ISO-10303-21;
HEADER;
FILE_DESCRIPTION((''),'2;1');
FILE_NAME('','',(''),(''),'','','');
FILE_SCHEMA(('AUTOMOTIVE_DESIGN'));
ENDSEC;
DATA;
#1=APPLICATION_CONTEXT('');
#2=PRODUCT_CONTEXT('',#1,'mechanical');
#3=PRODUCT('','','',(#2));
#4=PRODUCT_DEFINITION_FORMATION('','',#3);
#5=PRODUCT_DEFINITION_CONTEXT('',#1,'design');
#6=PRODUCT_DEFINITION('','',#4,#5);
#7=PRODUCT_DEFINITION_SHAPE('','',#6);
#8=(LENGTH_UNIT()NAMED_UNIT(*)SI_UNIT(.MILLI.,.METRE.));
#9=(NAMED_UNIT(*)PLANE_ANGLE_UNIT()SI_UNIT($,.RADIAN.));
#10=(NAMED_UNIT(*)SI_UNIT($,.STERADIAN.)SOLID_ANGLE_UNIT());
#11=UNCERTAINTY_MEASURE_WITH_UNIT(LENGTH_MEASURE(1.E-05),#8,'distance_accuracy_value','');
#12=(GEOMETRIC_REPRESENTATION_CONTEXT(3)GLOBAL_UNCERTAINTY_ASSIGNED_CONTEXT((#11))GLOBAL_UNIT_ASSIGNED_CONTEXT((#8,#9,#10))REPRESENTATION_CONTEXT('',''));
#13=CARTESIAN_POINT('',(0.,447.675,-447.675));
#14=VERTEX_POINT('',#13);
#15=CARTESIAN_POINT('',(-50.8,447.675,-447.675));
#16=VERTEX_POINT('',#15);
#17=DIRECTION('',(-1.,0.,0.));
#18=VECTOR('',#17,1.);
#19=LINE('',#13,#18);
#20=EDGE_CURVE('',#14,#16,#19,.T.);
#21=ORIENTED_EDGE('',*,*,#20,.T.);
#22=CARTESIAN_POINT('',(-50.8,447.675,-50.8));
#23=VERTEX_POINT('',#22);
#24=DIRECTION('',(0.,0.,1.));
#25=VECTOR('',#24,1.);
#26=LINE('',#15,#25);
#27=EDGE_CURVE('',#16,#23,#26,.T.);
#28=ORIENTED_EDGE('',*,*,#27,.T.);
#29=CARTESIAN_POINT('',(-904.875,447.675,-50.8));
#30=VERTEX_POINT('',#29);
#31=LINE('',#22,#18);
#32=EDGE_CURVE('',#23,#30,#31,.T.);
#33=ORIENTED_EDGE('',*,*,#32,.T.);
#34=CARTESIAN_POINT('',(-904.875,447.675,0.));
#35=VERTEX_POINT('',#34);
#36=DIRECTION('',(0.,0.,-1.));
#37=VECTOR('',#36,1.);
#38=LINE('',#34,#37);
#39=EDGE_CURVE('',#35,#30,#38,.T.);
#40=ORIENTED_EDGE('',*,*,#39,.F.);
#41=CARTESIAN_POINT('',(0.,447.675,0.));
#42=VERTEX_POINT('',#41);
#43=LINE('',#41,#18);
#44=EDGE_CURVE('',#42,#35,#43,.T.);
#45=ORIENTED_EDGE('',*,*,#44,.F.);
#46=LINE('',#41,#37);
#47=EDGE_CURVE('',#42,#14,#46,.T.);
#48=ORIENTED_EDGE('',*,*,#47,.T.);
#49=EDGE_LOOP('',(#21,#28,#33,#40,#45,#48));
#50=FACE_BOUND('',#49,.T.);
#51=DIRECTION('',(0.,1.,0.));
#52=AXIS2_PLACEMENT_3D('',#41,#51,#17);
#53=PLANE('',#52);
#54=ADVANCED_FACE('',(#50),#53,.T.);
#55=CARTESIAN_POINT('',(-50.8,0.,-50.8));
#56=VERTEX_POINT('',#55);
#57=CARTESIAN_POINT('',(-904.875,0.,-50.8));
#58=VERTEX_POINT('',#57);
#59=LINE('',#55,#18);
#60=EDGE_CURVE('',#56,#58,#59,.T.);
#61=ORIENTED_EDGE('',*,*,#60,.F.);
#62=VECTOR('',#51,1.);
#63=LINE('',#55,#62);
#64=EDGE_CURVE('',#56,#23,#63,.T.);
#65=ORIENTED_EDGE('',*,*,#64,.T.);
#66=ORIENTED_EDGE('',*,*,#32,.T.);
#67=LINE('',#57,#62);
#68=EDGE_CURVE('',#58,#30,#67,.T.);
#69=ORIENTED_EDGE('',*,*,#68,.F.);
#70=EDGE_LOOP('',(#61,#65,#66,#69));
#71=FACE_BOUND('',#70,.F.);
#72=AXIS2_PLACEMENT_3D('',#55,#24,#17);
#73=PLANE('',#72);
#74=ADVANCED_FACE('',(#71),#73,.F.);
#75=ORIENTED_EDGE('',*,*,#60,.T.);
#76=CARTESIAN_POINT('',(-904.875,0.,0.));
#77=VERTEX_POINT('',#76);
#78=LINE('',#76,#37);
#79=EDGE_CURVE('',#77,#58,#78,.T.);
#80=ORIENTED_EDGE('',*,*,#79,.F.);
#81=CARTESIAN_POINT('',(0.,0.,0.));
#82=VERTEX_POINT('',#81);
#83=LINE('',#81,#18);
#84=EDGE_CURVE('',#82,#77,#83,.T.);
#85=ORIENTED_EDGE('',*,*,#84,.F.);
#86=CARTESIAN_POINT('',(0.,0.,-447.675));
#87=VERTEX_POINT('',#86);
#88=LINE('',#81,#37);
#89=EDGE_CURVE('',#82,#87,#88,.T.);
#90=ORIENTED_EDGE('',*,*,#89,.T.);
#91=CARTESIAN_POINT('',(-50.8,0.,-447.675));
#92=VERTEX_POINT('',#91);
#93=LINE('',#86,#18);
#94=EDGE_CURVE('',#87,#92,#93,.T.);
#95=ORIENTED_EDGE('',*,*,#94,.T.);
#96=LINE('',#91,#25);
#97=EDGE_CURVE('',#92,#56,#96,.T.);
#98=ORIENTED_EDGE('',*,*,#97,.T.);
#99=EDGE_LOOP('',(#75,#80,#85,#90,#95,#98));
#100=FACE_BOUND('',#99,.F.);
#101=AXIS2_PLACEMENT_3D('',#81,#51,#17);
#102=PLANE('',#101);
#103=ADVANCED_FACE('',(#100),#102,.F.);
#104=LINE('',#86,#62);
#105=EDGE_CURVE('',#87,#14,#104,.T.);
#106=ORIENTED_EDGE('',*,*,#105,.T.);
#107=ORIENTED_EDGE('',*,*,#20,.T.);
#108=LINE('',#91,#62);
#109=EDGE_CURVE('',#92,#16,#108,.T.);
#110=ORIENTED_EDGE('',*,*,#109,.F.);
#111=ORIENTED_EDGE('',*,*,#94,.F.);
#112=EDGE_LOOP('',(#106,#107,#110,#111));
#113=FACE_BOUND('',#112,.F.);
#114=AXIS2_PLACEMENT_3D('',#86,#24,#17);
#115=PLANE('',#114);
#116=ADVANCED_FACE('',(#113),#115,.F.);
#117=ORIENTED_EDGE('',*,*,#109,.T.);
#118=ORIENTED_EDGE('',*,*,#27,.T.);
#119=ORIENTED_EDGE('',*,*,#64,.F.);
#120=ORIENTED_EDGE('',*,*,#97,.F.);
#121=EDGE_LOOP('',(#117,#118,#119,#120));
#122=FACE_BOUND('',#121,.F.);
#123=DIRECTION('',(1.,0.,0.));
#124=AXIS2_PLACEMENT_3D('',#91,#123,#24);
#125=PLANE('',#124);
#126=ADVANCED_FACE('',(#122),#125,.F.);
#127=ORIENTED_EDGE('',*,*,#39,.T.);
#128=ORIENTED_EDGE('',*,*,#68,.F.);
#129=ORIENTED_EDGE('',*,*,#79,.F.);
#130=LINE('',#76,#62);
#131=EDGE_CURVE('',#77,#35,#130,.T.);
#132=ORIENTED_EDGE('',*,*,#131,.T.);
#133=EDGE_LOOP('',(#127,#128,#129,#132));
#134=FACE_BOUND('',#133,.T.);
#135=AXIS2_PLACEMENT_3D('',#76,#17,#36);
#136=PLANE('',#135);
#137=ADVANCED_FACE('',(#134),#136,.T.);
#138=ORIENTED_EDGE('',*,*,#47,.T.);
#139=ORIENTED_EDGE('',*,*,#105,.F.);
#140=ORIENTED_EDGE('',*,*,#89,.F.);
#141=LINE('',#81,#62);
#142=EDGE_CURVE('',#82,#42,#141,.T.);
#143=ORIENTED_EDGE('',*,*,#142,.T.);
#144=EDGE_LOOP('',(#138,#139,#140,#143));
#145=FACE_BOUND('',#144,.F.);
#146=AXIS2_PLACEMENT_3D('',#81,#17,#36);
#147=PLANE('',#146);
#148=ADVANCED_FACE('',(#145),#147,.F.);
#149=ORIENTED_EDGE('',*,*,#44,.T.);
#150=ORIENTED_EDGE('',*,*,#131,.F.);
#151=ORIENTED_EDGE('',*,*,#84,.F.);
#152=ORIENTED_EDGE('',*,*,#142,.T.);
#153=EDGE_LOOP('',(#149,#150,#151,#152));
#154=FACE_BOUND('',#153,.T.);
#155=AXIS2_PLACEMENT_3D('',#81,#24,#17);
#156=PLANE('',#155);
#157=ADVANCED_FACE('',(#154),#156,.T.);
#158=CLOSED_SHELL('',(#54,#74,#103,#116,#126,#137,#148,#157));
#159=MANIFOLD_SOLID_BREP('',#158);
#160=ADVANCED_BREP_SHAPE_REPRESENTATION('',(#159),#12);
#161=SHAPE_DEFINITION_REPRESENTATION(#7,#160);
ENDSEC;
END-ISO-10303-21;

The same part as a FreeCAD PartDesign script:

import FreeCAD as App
import Part
import Sketcher
from FreeCAD import Vector
Q = App.Units.Quantity


def add_polygon(sketch, points):
    """Adds a closed chain of lines whose ends are joined by coincident constraints."""
    first, n = sketch.GeometryCount, len(points)
    for a, b in zip(points, points[1:] + points[:1]):
        sketch.addGeometry(Part.LineSegment(App.Vector(*a, 0), App.Vector(*b, 0)), False)
    for i in range(n):
        sketch.addConstraint(Sketcher.Constraint("Coincident", first + i, 2, first + (i + 1) % n, 1))

doc = App.newDocument("Part")
body = doc.addObject("PartDesign::Body", "Body")

# Sketch on XZ plane
sketch1 = body.newObject("Sketcher::SketchObject", "Sketch")
sketch1.AttachmentSupport = (doc.getObject("XZ_Plane"), [""])
sketch1.MapMode = "FlatFace"
add_polygon(sketch1, [(-904.875, 0), (0, 0), (0, -447.675), (-50.8, -447.675), (-50.8, -50.8), (-904.875, -50.8)])  # lines 0-5
sketch1.addConstraint(Sketcher.Constraint("Horizontal", 0))
sketch1.addConstraint(Sketcher.Constraint("Vertical", 1))
sketch1.addConstraint(Sketcher.Constraint("Horizontal", 2))
sketch1.addConstraint(Sketcher.Constraint("Vertical", 3))
sketch1.addConstraint(Sketcher.Constraint("Horizontal", 4))
sketch1.addConstraint(Sketcher.Constraint("Vertical", 5))
sketch1.addConstraint(Sketcher.Constraint("Coincident", 0, 2, -1, 1))
sketch1.addConstraint(Sketcher.Constraint("Equal", 2, 5))
sketch1.addConstraint(Sketcher.Constraint("DistanceX", 2, 2, 2, 1, Q("2 in")))
sketch1.addConstraint(Sketcher.Constraint("DistanceX", 0, 1, 0, 2, Q("35.625 in")))
sketch1.addConstraint(Sketcher.Constraint("DistanceY", 1, 2, 1, 1, Q("17.625 in")))
pad1 = body.newObject("PartDesign::Pad", "Pad")
pad1.Profile = sketch1
pad1.Length = Q("17.625 in")
pad1.Reversed = True

doc.recompute()
